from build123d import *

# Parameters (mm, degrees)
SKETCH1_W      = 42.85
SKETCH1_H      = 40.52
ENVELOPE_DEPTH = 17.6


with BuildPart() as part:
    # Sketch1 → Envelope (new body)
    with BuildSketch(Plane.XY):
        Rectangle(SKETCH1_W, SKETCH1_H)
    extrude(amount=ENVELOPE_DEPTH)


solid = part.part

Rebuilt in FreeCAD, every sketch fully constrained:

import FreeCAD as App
import Part
import Sketcher
from FreeCAD import Vector
Q = App.Units.Quantity


def add_polygon(sketch, points):
    """Adds a closed chain of lines whose ends are joined by coincident constraints."""
    first, n = sketch.GeometryCount, len(points)
    for a, b in zip(points, points[1:] + points[:1]):
        sketch.addGeometry(Part.LineSegment(App.Vector(*a, 0), App.Vector(*b, 0)), False)
    for i in range(n):
        sketch.addConstraint(Sketcher.Constraint("Coincident", first + i, 2, first + (i + 1) % n, 1))

doc = App.newDocument("Part")
body = doc.addObject("PartDesign::Body", "Body")

sketch1 = body.newObject("Sketcher::SketchObject", "Sketch")
sketch1.AttachmentSupport = (doc.getObject("XY_Plane"), [""])
sketch1.MapMode = "FlatFace"
add_polygon(sketch1, [(-21, 20), (-21, -20), (21, -20), (21, 20)])
sketch1.addConstraint(Sketcher.Constraint("Vertical", 0))
sketch1.addConstraint(Sketcher.Constraint("Horizontal", 1))
sketch1.addConstraint(Sketcher.Constraint("Vertical", 2))
sketch1.addConstraint(Sketcher.Constraint("Horizontal", 3))
sketch1.addConstraint(Sketcher.Constraint("Symmetric", 0, 2, 2, 2, -1, 1))
sketch1.addConstraint(Sketcher.Constraint("DistanceX", 1, 1, 1, 2, Q("42.85 mm")))
sketch1.addConstraint(Sketcher.Constraint("DistanceY", 0, 2, 0, 1, Q("40.52 mm")))
pad1 = body.newObject("PartDesign::Pad", "Pad")
pad1.Profile = sketch1
pad1.Length = 17.6

doc.recompute()
